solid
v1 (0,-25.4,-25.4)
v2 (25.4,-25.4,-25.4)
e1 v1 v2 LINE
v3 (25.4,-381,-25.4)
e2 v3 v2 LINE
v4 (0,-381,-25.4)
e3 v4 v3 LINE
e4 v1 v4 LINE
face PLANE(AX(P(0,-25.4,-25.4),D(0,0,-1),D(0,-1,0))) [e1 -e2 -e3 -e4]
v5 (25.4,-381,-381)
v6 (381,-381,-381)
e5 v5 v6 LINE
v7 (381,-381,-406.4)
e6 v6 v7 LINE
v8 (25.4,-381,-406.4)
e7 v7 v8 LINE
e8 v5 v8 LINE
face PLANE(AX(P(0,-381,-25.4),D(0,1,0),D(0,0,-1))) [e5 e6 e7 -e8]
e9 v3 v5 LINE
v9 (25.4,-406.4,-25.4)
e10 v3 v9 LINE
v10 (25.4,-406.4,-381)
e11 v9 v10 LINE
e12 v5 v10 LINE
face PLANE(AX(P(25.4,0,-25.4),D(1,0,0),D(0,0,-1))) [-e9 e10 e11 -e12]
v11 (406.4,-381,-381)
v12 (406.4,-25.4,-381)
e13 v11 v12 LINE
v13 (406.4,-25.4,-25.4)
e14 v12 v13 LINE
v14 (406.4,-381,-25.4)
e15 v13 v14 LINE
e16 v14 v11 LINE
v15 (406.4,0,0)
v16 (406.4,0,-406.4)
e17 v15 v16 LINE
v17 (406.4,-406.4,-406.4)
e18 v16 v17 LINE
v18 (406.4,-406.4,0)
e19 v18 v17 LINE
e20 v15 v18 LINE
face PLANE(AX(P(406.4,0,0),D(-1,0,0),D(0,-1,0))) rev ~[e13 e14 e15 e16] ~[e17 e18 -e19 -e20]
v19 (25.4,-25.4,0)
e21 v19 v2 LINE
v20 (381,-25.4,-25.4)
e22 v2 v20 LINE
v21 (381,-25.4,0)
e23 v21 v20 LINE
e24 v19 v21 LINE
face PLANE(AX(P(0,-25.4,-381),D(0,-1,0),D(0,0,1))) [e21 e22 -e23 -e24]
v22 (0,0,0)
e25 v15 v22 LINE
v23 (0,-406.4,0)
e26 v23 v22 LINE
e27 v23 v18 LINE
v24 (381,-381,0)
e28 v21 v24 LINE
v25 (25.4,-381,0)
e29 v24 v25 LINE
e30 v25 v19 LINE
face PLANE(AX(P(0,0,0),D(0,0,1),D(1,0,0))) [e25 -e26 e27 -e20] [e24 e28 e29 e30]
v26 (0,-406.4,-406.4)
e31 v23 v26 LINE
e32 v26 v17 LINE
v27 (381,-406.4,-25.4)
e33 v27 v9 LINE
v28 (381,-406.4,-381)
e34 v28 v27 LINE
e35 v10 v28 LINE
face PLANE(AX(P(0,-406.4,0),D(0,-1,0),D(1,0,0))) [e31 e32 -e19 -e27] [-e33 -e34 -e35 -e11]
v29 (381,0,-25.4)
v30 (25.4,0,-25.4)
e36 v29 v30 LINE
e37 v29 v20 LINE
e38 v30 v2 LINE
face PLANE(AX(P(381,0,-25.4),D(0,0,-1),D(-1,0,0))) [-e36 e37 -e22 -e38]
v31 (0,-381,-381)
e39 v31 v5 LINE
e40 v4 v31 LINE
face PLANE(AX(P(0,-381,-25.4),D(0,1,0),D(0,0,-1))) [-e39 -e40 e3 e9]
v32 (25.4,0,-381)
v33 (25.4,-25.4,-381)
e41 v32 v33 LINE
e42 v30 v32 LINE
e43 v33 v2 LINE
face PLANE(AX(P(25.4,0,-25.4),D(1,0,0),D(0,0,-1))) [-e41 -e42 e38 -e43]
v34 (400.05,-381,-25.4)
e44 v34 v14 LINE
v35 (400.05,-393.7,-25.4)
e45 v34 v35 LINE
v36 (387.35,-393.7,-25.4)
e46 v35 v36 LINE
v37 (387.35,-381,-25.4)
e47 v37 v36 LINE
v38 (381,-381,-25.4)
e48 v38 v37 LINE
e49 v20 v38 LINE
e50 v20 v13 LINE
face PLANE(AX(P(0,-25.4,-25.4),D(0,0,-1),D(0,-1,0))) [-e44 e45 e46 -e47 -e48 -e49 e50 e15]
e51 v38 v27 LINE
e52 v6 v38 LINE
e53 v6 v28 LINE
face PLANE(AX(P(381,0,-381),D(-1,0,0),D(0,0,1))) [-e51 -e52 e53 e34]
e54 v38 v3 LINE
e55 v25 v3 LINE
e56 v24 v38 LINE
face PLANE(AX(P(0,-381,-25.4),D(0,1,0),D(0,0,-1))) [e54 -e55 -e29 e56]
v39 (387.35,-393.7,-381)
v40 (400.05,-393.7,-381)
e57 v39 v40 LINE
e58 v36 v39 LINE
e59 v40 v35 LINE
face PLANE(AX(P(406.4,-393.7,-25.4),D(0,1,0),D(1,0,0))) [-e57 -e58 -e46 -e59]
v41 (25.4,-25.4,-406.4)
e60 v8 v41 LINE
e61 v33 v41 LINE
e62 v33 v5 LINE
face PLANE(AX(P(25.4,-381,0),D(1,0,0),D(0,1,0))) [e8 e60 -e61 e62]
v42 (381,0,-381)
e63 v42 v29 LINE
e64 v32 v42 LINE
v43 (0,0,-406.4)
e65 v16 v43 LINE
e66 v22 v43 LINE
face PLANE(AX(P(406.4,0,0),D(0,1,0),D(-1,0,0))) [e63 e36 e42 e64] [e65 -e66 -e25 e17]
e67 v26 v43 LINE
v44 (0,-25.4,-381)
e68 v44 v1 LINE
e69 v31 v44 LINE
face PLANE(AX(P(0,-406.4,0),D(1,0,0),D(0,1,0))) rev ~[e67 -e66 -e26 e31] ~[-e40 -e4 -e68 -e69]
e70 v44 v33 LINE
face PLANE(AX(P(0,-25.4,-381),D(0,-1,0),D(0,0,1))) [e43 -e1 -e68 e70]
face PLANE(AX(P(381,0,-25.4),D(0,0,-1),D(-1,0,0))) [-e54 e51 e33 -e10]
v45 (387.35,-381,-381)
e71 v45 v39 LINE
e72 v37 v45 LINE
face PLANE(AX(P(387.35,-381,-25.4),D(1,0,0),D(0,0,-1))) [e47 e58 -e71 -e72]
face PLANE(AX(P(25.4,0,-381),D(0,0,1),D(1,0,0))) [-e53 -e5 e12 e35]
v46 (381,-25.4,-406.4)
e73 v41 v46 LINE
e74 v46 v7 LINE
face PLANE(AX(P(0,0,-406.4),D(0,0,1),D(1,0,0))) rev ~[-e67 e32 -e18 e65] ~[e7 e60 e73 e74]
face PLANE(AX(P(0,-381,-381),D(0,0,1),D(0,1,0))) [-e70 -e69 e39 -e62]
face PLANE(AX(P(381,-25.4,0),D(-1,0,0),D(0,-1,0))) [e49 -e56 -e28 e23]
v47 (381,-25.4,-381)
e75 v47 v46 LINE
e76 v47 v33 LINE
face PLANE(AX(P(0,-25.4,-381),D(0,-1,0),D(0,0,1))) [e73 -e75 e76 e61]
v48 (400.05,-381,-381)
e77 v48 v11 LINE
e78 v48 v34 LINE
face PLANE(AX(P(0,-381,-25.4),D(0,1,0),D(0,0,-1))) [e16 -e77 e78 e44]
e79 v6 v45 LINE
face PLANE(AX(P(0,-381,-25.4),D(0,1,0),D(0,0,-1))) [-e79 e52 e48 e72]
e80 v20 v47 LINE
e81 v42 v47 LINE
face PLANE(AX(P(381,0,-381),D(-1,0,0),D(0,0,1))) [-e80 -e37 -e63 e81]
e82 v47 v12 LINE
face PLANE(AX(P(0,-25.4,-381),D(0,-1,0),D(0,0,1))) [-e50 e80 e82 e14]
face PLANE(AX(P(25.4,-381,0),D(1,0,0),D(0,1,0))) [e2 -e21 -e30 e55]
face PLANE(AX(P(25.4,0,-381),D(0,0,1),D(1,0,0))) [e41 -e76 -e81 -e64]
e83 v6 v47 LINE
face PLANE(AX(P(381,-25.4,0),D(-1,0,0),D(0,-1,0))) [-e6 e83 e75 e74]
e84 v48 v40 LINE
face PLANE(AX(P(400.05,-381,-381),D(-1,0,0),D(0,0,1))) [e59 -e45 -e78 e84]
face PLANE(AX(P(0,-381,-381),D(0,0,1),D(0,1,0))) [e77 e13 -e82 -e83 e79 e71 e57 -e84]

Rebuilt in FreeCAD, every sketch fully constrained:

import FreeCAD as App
import Part
import Sketcher
from FreeCAD import Vector
Q = App.Units.Quantity


def add_polygon(sketch, points):
    """Adds a closed chain of lines whose ends are joined by coincident constraints."""
    first, n = sketch.GeometryCount, len(points)
    for a, b in zip(points, points[1:] + points[:1]):
        sketch.addGeometry(Part.LineSegment(App.Vector(*a, 0), App.Vector(*b, 0)), False)
    for i in range(n):
        sketch.addConstraint(Sketcher.Constraint("Coincident", first + i, 2, first + (i + 1) % n, 1))

doc = App.newDocument("Part")
body = doc.addObject("PartDesign::Body", "Body")

# Sketch on XY plane
sketch1 = doc.addObject("Sketcher::SketchObject", "Sketch")
body.addObject(sketch1)
sketch1.AttachmentSupport = (doc.XY_Plane, [""])
sketch1.MapMode = "FlatFace"
add_polygon(sketch1, [(406.4, -406.4), (406.4, 0), (0, 0), (0, -406.4)])  # lines 0-3
sketch1.addConstraint([
    Sketcher.Constraint("Vertical", 0),
    Sketcher.Constraint("Horizontal", 1),
    Sketcher.Constraint("Vertical", 2),
    Sketcher.Constraint("Horizontal", 3),
    Sketcher.Constraint("Coincident", 1, 2, -1, 1),
    Sketcher.Constraint("Equal", 3, 0),
    Sketcher.Constraint("DistanceX", 1, 2, 1, 1, Q("16 in")),
])
pad1 = doc.addObject("PartDesign::Pad", "Pad")
body.addObject(pad1)
pad1.Profile = sketch1
pad1.Length = Q("16 in")
pad1.Reversed = True

# Sketch on XY plane
sketch2 = doc.addObject("Sketcher::SketchObject", "Sketch001")
body.addObject(sketch2)
sketch2.AttachmentSupport = (doc.XY_Plane, [""])
sketch2.MapMode = "FlatFace"
add_polygon(sketch2, [(381, -25.4), (25.4, -25.4), (25.4, -381), (381, -381)])  # lines 0-3
sketch2.addConstraint([
    Sketcher.Constraint("Horizontal", 0),
    Sketcher.Constraint("Vertical", 1),
    Sketcher.Constraint("Horizontal", 2),
    Sketcher.Constraint("Vertical", 3),
    Sketcher.Constraint("Equal", 2, 1),
    Sketcher.Constraint("DistanceX", 0, 2, 0, 1, Q("14 in")),
    Sketcher.Constraint("DistanceX", -1, 1, 0, 2, Q("1 in")),
    Sketcher.Constraint("DistanceY", 0, 2, -1, 1, Q("1 in")),
])
pocket1 = doc.addObject("PartDesign::Pocket", "Pocket")
body.addObject(pocket1)
pocket1.Profile = sketch2
pocket1.Length = Q("16 in")

# Sketch on YZ plane
sketch3 = doc.addObject("Sketcher::SketchObject", "Sketch002")
body.addObject(sketch3)
sketch3.AttachmentSupport = (doc.YZ_Plane, [""])
sketch3.MapMode = "FlatFace"
add_polygon(sketch3, [(-25.4, -25.4), (-25.4, -381), (-381, -381), (-381, -25.4)])  # lines 0-3
sketch3.addConstraint([
    Sketcher.Constraint("Vertical", 0),
    Sketcher.Constraint("Horizontal", 1),
    Sketcher.Constraint("Vertical", 2),
    Sketcher.Constraint("Horizontal", 3),
    Sketcher.Constraint("Equal", 3, 0),
    Sketcher.Constraint("DistanceX", 1, 2, 1, 1, Q("14 in")),
    Sketcher.Constraint("DistanceX", 0, 2, -1, 1, Q("1 in")),
    Sketcher.Constraint("DistanceY", 2, 2, -1, 1, Q("1 in")),
])
pocket2 = doc.addObject("PartDesign::Pocket", "Pocket001")
body.addObject(pocket2)
pocket2.Profile = sketch3
pocket2.Length = Q("16 in")
pocket2.Reversed = True

# Sketch on XZ plane
sketch4 = doc.addObject("Sketcher::SketchObject", "Sketch003")
body.addObject(sketch4)
sketch4.AttachmentSupport = (doc.XZ_Plane, [""])
sketch4.MapMode = "FlatFace"
add_polygon(sketch4, [(381, -381), (25.4, -381), (25.4, -25.4), (381, -25.4)])  # lines 0-3
sketch4.addConstraint([
    Sketcher.Constraint("Horizontal", 0),
    Sketcher.Constraint("Vertical", 1),
    Sketcher.Constraint("Horizontal", 2),
    Sketcher.Constraint("Vertical", 3),
    Sketcher.Constraint("Equal", 2, 1),
    Sketcher.Constraint("DistanceX", 0, 2, 0, 1, Q("14 in")),
    Sketcher.Constraint("DistanceX", -1, 1, 0, 2, Q("1 in")),
    Sketcher.Constraint("DistanceY", 1, 2, -1, 1, Q("1 in")),
])
pocket3 = doc.addObject("PartDesign::Pocket", "Pocket002")
body.addObject(pocket3)
pocket3.Profile = sketch4
pocket3.Length = Q("16 in")
pocket3.Reversed = True

# Sketch on XZ plane
sketch5 = doc.addObject("Sketcher::SketchObject", "Sketch004")
body.addObject(sketch5)
sketch5.AttachmentSupport = (doc.XZ_Plane, [""])
sketch5.MapMode = "FlatFace"
sketch5.AttachmentOffset = App.Placement(Vector(0, 0, 15 * 25.4), App.Rotation())
add_polygon(sketch5, [(387.35, -381), (387.35, -25.4), (400.05, -25.4), (400.05, -381)])  # lines 0-3
sketch5.addConstraint([
    Sketcher.Constraint("Vertical", 0),
    Sketcher.Constraint("Horizontal", 1),
    Sketcher.Constraint("Vertical", 2),
    Sketcher.Constraint("Horizontal", 3),
    Sketcher.Constraint("DistanceX", 1, 1, 1, 2, Q("0.5 in")),
    Sketcher.Constraint("DistanceY", 0, 1, 0, 2, Q("14 in")),
    Sketcher.Constraint("DistanceY", 0, 2, -1, 1, Q("1 in")),
    Sketcher.Constraint("DistanceX", -1, 1, 0, 2, Q("15.25 in")),
])
pocket4 = doc.addObject("PartDesign::Pocket", "Pocket003")
body.addObject(pocket4)
pocket4.Profile = sketch5
pocket4.Length = Q("0.5 in")
pocket4.Reversed = True

doc.recompute()
